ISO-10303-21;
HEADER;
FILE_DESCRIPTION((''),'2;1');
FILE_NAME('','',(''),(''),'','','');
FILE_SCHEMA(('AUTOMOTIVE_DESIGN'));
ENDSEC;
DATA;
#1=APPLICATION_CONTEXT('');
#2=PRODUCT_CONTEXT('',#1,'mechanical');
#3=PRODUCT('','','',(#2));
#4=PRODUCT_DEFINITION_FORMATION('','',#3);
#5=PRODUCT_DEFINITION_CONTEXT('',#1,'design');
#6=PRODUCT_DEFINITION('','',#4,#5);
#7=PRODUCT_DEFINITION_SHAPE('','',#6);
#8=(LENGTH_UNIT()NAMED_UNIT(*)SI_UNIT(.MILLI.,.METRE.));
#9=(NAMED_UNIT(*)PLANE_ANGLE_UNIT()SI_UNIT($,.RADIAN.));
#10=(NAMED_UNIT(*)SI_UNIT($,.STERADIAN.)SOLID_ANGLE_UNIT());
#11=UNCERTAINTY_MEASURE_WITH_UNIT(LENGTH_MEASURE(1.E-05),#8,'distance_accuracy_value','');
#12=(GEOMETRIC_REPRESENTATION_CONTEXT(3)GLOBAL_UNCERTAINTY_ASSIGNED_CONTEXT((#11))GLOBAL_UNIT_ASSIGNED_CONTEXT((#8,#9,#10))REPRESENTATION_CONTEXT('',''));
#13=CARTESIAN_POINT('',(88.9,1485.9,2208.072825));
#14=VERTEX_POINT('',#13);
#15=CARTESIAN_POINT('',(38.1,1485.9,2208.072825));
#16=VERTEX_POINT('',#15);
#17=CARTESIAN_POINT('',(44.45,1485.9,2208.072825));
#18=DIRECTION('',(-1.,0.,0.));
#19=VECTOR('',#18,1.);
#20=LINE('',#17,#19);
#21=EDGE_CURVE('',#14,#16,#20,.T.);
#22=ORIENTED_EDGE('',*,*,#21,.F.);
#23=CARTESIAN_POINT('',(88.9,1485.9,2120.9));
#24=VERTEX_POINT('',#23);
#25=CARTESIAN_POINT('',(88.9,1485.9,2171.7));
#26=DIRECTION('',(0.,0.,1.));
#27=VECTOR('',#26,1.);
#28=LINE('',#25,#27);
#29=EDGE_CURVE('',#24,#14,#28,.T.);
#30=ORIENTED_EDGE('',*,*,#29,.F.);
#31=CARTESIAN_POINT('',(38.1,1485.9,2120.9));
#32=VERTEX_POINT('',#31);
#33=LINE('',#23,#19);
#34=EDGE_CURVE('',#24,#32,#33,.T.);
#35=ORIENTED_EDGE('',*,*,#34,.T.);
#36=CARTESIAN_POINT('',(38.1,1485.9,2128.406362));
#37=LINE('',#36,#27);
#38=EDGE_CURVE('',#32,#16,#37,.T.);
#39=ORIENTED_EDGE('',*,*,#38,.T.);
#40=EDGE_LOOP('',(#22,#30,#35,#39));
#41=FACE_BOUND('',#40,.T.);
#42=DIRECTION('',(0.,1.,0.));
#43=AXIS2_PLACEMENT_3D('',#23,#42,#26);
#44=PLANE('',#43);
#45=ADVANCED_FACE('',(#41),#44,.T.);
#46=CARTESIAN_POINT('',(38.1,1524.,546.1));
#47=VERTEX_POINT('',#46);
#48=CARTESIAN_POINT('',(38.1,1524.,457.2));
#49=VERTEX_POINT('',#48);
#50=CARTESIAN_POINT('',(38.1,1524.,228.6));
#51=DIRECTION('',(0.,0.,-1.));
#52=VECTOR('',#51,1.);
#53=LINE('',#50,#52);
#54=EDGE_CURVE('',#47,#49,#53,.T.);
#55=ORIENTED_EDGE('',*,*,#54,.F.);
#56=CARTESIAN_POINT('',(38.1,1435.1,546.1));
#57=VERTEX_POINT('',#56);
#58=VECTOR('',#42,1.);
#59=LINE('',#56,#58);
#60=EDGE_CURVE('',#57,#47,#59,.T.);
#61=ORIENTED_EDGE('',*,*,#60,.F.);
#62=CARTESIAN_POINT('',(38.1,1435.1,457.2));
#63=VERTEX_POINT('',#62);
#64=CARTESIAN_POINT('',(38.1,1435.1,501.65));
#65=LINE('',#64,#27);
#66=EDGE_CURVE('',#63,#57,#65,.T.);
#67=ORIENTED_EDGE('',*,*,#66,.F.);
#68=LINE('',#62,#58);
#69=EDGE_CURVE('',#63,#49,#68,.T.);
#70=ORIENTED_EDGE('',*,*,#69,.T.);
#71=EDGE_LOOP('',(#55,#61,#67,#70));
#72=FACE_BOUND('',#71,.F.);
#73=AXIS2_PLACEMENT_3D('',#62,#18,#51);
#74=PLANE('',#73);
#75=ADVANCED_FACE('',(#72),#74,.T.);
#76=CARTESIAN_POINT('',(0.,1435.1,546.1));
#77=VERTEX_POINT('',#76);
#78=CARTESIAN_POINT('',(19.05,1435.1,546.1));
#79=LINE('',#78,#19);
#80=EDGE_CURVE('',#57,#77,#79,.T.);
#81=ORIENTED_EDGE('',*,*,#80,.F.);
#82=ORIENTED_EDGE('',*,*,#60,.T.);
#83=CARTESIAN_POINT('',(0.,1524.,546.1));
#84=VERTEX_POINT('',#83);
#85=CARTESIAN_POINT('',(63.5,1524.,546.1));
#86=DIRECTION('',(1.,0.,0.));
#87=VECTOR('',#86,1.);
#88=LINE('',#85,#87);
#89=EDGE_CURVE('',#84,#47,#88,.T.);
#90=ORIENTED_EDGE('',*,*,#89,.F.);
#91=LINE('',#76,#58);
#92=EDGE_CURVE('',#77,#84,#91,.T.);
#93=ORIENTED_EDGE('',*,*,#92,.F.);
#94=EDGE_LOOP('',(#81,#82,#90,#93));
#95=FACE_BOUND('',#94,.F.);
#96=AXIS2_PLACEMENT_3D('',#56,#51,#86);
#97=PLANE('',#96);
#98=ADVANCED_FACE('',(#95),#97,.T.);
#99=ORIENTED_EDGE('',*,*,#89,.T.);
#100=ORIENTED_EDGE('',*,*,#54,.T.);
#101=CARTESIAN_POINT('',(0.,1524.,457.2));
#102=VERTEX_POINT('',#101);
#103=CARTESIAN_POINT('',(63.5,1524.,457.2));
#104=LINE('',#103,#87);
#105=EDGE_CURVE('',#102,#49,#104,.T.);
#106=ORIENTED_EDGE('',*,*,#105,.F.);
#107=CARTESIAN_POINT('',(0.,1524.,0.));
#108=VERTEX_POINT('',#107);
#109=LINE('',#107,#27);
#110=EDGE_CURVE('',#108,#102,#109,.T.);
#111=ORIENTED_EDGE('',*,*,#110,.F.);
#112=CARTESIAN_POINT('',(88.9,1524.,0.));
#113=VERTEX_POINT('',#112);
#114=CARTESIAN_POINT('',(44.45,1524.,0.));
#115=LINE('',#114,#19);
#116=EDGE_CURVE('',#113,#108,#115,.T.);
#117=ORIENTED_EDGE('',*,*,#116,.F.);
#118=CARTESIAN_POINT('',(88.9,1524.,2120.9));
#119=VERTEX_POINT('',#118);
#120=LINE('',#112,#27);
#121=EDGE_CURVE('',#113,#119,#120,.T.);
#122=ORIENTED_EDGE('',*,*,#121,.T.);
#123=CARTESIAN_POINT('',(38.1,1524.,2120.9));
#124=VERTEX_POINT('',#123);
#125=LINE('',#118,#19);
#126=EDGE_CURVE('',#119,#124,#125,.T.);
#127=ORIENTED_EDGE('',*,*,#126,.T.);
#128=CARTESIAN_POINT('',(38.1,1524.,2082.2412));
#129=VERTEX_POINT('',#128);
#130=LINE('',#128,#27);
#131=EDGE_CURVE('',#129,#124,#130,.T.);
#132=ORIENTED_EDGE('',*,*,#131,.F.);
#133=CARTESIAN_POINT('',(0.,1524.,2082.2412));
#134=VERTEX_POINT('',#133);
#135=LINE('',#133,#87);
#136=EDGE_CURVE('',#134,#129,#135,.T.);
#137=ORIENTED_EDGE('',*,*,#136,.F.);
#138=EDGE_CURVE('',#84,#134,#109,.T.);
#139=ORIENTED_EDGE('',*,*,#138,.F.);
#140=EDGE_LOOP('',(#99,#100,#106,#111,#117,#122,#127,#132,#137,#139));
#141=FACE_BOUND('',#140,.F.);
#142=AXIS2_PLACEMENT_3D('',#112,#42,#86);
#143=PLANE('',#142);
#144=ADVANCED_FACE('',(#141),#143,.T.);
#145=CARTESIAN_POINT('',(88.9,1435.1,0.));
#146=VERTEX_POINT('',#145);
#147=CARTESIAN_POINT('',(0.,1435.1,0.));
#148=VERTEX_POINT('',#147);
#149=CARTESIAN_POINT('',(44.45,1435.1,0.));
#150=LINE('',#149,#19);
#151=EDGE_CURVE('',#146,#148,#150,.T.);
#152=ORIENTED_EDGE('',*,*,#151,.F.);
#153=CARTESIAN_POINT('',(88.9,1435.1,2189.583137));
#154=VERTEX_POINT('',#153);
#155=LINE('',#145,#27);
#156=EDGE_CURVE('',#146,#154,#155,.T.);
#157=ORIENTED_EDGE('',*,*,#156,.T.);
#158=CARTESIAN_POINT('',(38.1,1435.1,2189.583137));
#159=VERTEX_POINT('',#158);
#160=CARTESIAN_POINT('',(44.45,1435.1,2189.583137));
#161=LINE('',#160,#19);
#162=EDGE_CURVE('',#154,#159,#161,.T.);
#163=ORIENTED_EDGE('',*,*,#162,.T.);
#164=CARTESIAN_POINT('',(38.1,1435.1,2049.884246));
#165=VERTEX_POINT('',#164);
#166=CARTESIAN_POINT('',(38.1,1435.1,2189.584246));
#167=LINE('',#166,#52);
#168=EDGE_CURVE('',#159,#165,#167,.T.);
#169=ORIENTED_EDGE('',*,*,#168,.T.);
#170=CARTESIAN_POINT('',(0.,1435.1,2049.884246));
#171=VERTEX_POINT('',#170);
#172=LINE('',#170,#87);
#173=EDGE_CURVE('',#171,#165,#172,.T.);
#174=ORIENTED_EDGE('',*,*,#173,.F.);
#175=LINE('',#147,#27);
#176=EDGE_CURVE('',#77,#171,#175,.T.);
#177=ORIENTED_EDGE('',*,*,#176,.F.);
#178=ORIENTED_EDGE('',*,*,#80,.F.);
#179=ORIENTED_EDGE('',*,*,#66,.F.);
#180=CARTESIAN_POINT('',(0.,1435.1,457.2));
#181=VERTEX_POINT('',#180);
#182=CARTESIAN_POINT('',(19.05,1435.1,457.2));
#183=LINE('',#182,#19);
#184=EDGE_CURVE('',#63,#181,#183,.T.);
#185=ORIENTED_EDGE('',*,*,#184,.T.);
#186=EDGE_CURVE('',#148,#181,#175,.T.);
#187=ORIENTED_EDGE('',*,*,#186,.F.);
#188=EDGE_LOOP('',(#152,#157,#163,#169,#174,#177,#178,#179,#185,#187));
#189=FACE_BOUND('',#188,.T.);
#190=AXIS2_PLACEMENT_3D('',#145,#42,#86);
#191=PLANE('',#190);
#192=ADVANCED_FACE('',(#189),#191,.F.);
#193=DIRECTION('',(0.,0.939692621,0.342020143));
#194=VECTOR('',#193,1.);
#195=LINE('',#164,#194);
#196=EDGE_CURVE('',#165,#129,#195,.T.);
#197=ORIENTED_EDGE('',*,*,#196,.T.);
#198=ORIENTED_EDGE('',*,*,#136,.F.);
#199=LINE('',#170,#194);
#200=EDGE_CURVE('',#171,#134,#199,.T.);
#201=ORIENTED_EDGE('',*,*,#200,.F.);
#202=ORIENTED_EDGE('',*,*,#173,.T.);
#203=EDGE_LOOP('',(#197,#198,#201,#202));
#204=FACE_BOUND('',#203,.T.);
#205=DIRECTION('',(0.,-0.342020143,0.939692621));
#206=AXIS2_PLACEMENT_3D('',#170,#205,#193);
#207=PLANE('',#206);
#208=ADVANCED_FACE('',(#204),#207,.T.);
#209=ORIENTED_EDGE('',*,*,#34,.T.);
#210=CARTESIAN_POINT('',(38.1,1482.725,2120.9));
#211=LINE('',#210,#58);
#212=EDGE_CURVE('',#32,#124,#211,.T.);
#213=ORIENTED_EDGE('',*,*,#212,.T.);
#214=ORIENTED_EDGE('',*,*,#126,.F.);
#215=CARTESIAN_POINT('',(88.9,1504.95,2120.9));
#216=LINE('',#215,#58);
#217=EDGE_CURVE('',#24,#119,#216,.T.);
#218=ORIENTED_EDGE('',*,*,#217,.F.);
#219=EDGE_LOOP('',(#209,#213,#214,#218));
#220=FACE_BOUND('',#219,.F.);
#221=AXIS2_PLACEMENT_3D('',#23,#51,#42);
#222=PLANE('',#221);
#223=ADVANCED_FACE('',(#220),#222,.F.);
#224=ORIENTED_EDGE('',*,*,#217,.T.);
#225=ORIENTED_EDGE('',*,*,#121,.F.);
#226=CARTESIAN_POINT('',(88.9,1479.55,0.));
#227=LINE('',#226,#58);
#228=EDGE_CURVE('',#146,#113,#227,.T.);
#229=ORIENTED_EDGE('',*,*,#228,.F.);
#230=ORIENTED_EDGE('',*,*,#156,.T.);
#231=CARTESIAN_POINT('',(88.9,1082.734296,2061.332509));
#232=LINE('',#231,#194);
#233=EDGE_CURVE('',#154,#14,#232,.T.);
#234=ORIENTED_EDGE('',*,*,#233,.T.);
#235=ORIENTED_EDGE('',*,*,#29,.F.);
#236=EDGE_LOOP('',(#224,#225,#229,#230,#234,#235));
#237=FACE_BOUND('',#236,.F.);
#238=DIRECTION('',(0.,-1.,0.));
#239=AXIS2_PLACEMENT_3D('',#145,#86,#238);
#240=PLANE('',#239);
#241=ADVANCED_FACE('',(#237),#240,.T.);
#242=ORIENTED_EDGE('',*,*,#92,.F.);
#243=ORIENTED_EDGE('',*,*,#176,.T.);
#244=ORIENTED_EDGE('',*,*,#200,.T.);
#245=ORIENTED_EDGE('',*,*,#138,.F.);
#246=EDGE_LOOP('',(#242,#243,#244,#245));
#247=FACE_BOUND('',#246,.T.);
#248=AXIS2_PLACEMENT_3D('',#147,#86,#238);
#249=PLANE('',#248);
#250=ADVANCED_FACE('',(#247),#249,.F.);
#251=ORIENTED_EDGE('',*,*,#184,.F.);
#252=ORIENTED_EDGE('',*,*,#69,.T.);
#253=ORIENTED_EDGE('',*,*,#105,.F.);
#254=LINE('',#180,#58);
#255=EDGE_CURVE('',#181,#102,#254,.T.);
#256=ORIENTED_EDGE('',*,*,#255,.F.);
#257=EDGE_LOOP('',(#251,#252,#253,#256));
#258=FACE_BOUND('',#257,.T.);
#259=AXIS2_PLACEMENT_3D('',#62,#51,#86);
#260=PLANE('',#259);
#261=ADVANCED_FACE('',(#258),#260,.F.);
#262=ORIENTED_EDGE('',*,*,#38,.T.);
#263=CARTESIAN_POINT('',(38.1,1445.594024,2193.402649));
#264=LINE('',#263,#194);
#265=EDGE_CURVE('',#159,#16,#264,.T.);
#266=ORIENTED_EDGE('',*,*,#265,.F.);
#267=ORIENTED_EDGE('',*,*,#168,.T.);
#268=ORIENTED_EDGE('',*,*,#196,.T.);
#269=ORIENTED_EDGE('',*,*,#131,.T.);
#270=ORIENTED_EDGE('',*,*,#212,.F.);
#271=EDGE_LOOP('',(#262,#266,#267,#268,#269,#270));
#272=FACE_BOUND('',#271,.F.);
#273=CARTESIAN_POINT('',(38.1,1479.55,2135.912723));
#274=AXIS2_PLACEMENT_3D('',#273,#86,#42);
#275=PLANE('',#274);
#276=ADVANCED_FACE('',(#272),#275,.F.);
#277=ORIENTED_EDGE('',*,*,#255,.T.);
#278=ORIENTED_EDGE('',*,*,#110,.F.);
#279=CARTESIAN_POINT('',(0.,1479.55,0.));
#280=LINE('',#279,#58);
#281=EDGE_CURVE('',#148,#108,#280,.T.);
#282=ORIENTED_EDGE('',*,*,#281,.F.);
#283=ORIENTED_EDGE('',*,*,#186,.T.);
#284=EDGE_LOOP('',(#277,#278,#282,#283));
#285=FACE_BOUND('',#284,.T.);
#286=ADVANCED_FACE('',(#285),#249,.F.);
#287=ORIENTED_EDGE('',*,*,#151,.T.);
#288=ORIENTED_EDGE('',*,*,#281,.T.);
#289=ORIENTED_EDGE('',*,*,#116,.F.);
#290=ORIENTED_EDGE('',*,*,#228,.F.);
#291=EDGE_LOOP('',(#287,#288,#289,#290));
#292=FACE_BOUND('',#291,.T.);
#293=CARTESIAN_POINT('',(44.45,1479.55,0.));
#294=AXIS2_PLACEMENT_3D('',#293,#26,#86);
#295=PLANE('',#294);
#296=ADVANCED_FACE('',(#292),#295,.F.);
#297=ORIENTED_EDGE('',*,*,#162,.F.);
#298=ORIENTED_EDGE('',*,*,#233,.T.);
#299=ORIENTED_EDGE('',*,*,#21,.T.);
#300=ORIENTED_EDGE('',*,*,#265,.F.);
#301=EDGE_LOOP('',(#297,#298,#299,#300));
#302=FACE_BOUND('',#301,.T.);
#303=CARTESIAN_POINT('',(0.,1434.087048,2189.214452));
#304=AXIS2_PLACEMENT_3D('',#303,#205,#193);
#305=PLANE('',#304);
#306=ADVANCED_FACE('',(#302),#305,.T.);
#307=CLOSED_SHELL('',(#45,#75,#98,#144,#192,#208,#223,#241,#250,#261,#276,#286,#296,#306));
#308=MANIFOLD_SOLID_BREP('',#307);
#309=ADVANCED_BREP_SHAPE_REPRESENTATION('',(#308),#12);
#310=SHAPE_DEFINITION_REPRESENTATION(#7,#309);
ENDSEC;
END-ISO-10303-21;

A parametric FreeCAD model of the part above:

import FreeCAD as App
import Part
import Sketcher
from FreeCAD import Vector
Q = App.Units.Quantity


def add_polygon(sketch, points):
    """Adds a closed chain of lines whose ends are joined by coincident constraints."""
    first, n = sketch.GeometryCount, len(points)
    for a, b in zip(points, points[1:] + points[:1]):
        sketch.addGeometry(Part.LineSegment(App.Vector(*a, 0), App.Vector(*b, 0)), False)
    for i in range(n):
        sketch.addConstraint(Sketcher.Constraint("Coincident", first + i, 2, first + (i + 1) % n, 1))

doc = App.newDocument("Part")
body = doc.addObject("PartDesign::Body", "Body")

# Sketch on XY plane
sketch1 = body.newObject("Sketcher::SketchObject", "Sketch")
sketch1.AttachmentSupport = (doc.getObject("XY_Plane"), [""])
sketch1.MapMode = "FlatFace"
add_polygon(sketch1, [(1435, 1524), (1435, 1435), (1524, 1435), (1524, 1524)])  # lines 0-3
sketch1.addConstraint([
    Sketcher.Constraint("Vertical", 0),
    Sketcher.Constraint("Horizontal", 1),
    Sketcher.Constraint("Vertical", 2),
    Sketcher.Constraint("Horizontal", 3),
    Sketcher.Constraint("Equal", 3, 0),
    Sketcher.Constraint("DistanceX", 1, 1, 1, 2, Q("3.5 in")),
    Sketcher.Constraint("DistanceX", -1, 1, 1, 2, Q("60 in")),
    Sketcher.Constraint("DistanceY", -1, 1, 2, 2, Q("60 in")),
])
pad1 = body.newObject("PartDesign::Pad", "Pad")
pad1.Profile = sketch1
pad1.Length = Q("96 in")

# Sketch on XZ plane
sketch2 = body.newObject("Sketcher::SketchObject", "Sketch001")
sketch2.AttachmentSupport = (doc.getObject("XZ_Plane"), [""])
sketch2.MapMode = "FlatFace"
sketch2.AttachmentOffset = App.Placement(Vector(0, 0, -56.5 * 25.4), App.Rotation())
add_polygon(sketch2, [(1486, 546), (1486, 457), (1524, 457), (1524, 546)])  # lines 0-3
sketch2.addConstraint([
    Sketcher.Constraint("Vertical", 0),
    Sketcher.Constraint("Horizontal", 1),
    Sketcher.Constraint("Vertical", 2),
    Sketcher.Constraint("Horizontal", 3),
    Sketcher.Constraint("DistanceX", 1, 1, 1, 2, Q("1.5 in")),
    Sketcher.Constraint("DistanceY", 0, 2, 0, 1, Q("3.5 in")),
    Sketcher.Constraint("DistanceY", -1, 1, 0, 2, Q("18 in")),
    Sketcher.Constraint("DistanceX", -1, 1, 1, 2, Q("60 in")),
])
pocket1 = body.newObject("PartDesign::Pocket", "Pocket")
pocket1.Profile = sketch2
pocket1.Type = "ThroughAll"
body2 = doc.addObject("PartDesign::Body", "Body001")
doc.recompute()

mirroring = doc.addObject("Part::Mirroring", "Mirroring")
mirroring.Source = body
mirroring.Base = Vector(762, 0, 0)
mirroring.Normal = Vector(1, 0, 0)
body2.BaseFeature = mirroring
doc.recompute()

# Sketch on YZ plane
sketch3 = body2.newObject("Sketcher::SketchObject", "Sketch002")
sketch3.AttachmentSupport = (doc.getObject("YZ_Plane001"), [""])
sketch3.MapMode = "FlatFace"
add_polygon(sketch3, [(1524, 2438), (1524, 2222), (1434, 2189), (1434, 2438)])  # lines 0-3
sketch3.addConstraint([
    Sketcher.Constraint("Vertical", 0),
    Sketcher.Constraint("Vertical", 2),
    Sketcher.Constraint("Horizontal", 3),
    Sketcher.Constraint("DistanceY", -1, 1, 2, 2, Q("96 in")),
    Sketcher.Constraint("Angle", 1, Q("-160 deg")),
    Sketcher.Constraint("DistanceX", 3, 1, 3, 2, Q("3.54 in")),
    Sketcher.Constraint("DistanceY", 0, 2, 0, 1, Q("8.522 in")),
    Sketcher.Constraint("DistanceX", -1, 1, 0, 2, 1524.003048),
])
pocket2 = body2.newObject("PartDesign::Pocket", "Pocket001")
pocket2.Profile = sketch3
pocket2.Type = "ThroughAll"
pocket2.Reversed = True

# Sketch on YZ plane
sketch4 = body2.newObject("Sketcher::SketchObject", "Sketch003")
sketch4.AttachmentSupport = (doc.getObject("YZ_Plane001"), [""])
sketch4.MapMode = "FlatFace"
add_polygon(sketch4, [(1435, 2190), (1524, 2222), (1524, 2082), (1435, 2050)])  # lines 0-3
sketch4.addConstraint([
    Sketcher.Constraint("Vertical", 1),
    Sketcher.Constraint("Vertical", 3),
    Sketcher.Constraint("Parallel", 0, 2),
    Sketcher.Constraint("DistanceY", 1, 2, 1, 1, Q("5.5 in")),
    Sketcher.Constraint("DistanceX", -1, 1, 0, 2, Q("60 in")),
    Sketcher.Constraint("Angle", 0, Q("20 deg")),
    Sketcher.Constraint("DistanceX", -1, 1, 2, 2, Q("56.5 in")),
    Sketcher.Constraint("DistanceY", -1, 1, 0, 2, Q("87.478 in")),
])
pocket3 = body2.newObject("PartDesign::Pocket", "Pocket002")
pocket3.Profile = sketch4
pocket3.Length = Q("1.5 in")
pocket3.Reversed = True

# Sketch on YZ plane
sketch5 = body2.newObject("Sketcher::SketchObject", "Sketch004")
sketch5.AttachmentSupport = (doc.getObject("YZ_Plane001"), [""])
sketch5.MapMode = "FlatFace"
sketch5.AttachmentOffset = App.Placement(Vector(0, 0, 3.5 * 25.4), App.Rotation())
add_polygon(sketch5, [(1486, 2222), (1486, 2121), (1524, 2121), (1524, 2222)])  # lines 0-3
sketch5.addConstraint([
    Sketcher.Constraint("Vertical", 0),
    Sketcher.Constraint("Horizontal", 1),
    Sketcher.Constraint("Vertical", 2),
    Sketcher.Constraint("Horizontal", 3),
    Sketcher.Constraint("DistanceY", 0, 2, 0, 1, Q("4 in")),
    Sketcher.Constraint("DistanceX", 1, 1, 1, 2, Q("1.5 in")),
    Sketcher.Constraint("DistanceX", -1, 1, 1, 2, Q("60 in")),
    Sketcher.Constraint("DistanceY", -1, 1, 0, 2, Q("83.5 in")),
])
pocket4 = body2.newObject("PartDesign::Pocket", "Pocket003")
pocket4.Profile = sketch5
pocket4.Type = "ThroughAll"
body.Visibility = False
mirroring.Visibility = False

doc.recompute()
